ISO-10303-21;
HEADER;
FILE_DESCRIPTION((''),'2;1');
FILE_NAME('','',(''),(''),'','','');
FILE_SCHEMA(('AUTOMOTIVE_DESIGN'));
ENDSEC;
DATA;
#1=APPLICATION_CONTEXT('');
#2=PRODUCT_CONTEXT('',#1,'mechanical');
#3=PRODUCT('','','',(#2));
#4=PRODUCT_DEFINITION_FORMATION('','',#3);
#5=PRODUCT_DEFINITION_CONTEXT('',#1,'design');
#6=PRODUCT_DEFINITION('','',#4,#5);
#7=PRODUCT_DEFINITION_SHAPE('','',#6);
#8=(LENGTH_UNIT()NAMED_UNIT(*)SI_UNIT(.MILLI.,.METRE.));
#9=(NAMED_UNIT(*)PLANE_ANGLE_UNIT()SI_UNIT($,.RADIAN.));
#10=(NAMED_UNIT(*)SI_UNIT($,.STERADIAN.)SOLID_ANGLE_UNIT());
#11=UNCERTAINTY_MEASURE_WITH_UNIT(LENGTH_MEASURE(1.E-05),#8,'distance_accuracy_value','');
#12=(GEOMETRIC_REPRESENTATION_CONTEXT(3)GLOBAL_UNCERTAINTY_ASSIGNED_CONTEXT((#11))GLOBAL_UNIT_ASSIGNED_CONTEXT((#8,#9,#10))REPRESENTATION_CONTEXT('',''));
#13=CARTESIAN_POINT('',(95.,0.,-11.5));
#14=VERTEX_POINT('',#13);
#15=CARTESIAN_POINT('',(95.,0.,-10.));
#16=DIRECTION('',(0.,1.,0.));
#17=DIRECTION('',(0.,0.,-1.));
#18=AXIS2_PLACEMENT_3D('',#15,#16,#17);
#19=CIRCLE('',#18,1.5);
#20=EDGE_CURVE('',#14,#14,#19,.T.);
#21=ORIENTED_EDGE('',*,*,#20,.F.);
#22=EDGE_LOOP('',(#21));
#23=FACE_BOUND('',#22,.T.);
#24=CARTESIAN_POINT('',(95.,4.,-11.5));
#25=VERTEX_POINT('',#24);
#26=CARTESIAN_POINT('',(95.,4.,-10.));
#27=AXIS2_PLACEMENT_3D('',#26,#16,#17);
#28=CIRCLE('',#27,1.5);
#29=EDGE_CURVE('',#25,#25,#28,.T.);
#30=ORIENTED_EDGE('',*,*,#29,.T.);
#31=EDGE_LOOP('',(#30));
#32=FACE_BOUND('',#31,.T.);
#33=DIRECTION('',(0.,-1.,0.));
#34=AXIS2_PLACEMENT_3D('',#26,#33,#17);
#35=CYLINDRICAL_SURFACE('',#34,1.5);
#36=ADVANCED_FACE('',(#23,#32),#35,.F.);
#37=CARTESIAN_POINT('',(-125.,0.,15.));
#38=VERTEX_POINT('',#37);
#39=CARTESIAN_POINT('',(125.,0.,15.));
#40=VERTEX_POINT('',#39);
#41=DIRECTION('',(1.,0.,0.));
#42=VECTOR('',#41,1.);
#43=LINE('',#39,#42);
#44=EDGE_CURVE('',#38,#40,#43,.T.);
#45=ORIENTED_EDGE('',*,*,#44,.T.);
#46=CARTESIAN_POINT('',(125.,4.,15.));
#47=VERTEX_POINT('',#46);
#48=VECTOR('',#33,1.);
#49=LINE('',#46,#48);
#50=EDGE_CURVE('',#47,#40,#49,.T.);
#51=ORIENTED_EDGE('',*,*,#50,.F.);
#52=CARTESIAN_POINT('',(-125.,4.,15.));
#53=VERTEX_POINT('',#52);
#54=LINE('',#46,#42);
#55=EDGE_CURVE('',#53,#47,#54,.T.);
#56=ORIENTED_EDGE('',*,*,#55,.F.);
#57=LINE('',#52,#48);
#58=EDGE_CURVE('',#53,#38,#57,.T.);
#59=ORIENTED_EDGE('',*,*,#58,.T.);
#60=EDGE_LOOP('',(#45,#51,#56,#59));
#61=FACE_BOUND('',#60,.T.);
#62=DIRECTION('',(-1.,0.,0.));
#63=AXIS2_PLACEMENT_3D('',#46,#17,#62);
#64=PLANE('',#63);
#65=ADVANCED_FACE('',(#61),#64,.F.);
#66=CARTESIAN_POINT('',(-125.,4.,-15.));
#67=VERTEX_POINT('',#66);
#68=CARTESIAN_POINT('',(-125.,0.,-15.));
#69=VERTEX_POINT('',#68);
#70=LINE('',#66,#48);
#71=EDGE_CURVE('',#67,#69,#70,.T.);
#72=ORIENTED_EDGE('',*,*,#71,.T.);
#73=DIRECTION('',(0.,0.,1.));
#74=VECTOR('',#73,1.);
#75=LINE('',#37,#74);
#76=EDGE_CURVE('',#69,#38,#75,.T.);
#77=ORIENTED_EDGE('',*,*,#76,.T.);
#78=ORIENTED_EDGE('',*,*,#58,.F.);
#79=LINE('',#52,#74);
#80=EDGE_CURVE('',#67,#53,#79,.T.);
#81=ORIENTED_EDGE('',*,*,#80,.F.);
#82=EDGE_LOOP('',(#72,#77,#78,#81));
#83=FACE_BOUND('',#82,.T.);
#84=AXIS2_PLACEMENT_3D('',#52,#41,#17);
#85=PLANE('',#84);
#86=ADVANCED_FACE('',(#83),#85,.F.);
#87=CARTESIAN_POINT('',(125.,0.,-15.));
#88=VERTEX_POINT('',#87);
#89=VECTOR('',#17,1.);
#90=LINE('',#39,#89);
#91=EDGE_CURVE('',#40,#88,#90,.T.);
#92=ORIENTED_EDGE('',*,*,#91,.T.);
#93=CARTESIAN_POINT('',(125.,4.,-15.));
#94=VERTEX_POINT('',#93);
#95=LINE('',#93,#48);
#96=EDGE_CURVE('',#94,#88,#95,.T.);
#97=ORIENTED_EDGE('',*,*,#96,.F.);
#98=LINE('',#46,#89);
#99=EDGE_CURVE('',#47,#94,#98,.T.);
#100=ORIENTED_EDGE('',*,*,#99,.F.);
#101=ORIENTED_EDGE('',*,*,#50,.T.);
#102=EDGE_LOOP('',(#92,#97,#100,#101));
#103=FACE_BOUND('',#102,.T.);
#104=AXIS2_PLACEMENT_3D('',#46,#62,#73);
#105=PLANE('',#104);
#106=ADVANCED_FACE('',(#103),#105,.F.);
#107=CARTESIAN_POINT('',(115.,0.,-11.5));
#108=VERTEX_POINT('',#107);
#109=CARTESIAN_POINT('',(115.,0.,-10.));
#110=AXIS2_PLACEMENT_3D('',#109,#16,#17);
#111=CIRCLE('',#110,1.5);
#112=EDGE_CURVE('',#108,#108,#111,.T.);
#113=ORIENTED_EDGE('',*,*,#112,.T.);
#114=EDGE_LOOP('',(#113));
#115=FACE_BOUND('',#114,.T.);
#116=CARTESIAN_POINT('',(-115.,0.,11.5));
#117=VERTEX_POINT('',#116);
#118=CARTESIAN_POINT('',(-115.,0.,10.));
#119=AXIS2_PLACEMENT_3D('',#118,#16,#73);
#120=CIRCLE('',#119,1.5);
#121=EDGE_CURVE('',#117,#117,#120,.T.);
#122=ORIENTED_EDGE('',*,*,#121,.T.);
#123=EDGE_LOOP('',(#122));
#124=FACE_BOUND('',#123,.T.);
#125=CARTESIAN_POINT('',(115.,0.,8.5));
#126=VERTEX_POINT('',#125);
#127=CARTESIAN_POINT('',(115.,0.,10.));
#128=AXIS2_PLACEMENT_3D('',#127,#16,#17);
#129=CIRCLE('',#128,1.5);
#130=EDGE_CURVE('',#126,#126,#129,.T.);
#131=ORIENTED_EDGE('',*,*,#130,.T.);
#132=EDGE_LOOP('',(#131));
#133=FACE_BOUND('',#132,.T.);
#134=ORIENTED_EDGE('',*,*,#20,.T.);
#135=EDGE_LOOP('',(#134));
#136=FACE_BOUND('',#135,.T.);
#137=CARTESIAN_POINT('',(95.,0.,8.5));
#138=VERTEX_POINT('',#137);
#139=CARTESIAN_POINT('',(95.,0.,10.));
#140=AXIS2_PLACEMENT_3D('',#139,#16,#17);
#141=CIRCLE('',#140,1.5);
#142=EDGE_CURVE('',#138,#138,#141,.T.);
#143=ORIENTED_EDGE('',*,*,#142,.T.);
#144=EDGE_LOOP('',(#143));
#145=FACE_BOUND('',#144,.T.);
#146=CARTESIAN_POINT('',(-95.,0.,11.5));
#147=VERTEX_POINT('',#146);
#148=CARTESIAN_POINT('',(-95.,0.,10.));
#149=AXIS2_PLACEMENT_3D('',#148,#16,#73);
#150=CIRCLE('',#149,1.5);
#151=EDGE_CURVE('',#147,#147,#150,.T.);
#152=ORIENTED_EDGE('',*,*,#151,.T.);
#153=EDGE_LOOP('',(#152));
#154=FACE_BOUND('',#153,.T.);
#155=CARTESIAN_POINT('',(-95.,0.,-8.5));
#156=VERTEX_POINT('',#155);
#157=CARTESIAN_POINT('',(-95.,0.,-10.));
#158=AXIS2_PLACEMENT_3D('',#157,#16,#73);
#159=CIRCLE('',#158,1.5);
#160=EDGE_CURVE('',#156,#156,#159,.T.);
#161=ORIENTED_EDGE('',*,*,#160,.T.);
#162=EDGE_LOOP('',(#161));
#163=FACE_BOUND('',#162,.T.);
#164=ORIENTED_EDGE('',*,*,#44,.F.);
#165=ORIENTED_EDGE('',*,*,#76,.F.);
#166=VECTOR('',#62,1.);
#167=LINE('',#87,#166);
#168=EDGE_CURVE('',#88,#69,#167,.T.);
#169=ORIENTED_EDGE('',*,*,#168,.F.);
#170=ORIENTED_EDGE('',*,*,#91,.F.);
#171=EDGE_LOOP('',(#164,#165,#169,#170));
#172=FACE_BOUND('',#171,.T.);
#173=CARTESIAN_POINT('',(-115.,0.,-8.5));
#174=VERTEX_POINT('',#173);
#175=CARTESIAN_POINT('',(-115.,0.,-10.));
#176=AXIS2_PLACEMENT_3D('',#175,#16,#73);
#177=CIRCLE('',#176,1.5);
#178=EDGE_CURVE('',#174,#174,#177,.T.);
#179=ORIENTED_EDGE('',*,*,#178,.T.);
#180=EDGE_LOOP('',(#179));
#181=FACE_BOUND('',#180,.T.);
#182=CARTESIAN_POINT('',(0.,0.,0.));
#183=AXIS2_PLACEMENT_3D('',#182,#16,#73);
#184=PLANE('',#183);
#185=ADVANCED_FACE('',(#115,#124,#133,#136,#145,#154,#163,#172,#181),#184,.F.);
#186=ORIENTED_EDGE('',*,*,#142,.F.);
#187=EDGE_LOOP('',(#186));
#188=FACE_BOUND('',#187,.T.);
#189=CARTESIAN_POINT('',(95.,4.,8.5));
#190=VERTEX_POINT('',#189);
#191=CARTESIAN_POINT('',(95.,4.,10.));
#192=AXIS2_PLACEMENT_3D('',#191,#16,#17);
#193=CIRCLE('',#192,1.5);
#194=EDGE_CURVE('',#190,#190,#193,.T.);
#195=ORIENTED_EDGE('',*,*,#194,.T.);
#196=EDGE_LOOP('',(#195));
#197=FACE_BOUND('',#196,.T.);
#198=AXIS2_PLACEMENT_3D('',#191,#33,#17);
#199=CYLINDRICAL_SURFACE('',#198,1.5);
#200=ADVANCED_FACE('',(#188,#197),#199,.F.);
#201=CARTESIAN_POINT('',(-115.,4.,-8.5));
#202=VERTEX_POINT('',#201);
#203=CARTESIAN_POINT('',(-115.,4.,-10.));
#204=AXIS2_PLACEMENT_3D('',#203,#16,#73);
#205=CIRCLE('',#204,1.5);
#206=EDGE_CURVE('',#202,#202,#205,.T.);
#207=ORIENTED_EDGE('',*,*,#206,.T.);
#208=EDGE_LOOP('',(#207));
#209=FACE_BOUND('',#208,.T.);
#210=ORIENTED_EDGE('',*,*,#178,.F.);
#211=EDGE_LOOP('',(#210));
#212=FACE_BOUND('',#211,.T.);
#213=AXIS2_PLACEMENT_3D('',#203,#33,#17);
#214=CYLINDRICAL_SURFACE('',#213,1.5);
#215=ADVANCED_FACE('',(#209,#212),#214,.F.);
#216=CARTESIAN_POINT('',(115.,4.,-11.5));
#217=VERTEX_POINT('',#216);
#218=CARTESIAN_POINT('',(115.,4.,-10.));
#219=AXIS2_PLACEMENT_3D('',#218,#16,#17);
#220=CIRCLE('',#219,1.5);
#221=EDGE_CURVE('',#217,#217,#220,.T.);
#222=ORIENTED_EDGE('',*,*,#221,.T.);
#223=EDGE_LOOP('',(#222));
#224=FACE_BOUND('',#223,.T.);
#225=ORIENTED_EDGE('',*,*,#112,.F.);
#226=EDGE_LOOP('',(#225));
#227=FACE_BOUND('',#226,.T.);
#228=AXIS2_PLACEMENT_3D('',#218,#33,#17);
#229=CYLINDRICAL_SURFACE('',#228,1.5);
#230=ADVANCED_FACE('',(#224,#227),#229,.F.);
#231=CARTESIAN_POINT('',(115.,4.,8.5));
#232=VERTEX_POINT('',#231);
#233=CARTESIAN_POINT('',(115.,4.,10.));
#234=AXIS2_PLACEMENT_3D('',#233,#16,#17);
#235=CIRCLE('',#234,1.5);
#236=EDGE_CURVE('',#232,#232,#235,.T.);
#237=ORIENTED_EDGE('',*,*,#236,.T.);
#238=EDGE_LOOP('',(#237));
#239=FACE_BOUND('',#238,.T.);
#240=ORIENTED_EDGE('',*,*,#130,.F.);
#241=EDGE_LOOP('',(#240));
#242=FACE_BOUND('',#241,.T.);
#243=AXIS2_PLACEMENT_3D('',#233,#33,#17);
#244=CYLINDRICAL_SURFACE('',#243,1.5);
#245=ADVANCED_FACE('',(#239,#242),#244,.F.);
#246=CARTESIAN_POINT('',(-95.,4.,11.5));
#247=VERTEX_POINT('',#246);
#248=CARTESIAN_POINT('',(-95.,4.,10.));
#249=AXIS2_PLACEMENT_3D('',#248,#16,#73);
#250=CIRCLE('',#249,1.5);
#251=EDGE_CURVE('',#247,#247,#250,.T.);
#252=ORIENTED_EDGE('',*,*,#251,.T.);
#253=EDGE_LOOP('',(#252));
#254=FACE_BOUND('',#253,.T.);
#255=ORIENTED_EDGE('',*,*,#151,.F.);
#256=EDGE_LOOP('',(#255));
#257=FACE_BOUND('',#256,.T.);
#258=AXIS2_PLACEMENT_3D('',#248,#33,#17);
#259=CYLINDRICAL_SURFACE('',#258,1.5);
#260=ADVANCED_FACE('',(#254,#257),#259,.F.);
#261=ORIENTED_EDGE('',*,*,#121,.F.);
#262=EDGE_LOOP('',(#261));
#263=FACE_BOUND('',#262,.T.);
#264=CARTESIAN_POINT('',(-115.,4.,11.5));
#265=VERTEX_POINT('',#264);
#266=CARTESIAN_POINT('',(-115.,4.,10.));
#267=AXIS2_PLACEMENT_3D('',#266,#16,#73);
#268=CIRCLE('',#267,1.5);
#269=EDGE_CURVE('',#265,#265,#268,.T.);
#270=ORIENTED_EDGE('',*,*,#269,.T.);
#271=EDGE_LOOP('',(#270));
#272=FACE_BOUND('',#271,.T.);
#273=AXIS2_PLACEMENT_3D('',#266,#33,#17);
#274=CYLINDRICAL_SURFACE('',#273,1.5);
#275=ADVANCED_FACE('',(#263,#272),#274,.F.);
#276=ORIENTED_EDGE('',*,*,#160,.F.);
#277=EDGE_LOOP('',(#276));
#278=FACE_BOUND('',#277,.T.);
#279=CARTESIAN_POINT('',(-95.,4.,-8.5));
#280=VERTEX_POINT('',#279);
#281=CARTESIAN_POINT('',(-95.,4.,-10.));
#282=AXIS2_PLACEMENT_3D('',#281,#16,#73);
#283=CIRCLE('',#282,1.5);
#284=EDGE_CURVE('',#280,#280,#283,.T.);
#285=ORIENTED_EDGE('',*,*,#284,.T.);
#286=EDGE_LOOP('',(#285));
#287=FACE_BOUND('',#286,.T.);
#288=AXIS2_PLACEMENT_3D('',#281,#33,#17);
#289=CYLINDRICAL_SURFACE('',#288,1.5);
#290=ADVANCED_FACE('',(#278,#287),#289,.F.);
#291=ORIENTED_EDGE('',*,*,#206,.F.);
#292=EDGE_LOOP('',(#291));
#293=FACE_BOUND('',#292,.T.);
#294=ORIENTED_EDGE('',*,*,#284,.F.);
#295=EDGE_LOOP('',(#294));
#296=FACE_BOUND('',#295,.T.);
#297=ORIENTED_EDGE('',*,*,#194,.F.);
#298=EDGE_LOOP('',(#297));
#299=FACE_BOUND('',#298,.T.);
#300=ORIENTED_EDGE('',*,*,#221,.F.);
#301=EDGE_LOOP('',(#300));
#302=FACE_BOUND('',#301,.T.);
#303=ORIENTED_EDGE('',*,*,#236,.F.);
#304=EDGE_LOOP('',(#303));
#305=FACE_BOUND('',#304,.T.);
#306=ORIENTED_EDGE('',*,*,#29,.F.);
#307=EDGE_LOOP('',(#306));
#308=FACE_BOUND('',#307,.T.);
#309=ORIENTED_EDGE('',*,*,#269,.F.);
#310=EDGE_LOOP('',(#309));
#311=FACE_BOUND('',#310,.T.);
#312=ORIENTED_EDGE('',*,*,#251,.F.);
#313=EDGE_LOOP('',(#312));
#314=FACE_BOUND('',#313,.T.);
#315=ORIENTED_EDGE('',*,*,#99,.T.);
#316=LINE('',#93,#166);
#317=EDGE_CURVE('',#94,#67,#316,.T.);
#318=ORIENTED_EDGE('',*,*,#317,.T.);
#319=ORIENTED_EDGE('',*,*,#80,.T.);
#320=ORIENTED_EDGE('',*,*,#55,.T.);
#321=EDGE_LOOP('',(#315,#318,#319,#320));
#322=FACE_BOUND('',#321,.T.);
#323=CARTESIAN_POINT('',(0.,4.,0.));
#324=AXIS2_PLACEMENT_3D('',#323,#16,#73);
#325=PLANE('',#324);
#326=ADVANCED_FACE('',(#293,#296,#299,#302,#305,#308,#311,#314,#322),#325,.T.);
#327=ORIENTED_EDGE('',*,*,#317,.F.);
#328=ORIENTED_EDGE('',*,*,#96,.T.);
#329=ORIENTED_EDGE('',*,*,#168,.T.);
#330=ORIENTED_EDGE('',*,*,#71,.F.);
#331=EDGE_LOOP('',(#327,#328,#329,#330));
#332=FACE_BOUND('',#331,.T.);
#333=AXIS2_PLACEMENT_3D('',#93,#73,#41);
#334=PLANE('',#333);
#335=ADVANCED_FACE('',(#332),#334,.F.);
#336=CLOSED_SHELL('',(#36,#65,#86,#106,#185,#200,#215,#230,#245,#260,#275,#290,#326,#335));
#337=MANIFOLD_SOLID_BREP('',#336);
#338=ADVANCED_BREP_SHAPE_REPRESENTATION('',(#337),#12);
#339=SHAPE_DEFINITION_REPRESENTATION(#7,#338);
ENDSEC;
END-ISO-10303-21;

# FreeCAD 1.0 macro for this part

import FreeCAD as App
import Part
import Sketcher


def add_polygon(sketch, points):
    """Adds a closed chain of lines whose ends are joined by coincident constraints."""
    first, n = sketch.GeometryCount, len(points)
    for a, b in zip(points, points[1:] + points[:1]):
        sketch.addGeometry(Part.LineSegment(App.Vector(*a, 0), App.Vector(*b, 0)), False)
    for i in range(n):
        sketch.addConstraint(Sketcher.Constraint("Coincident", first + i, 2, first + (i + 1) % n, 1))

doc = App.newDocument("Part")
body = doc.addObject("PartDesign::Body", "Body")

sketch1 = doc.addObject("Sketcher::SketchObject", "Sketch")
body.addObject(sketch1)
sketch1.AttachmentSupport = (doc.XZ_Plane, [""])
sketch1.MapMode = "FlatFace"
add_polygon(sketch1, [(-125, -15), (-125, 15), (125, 15), (125, -15)])
sketch1.addGeometry(Part.Circle(App.Vector(-115, 10, 0), App.Vector(0, 0, 1), 1.5), False)
sketch1.addGeometry(Part.Circle(App.Vector(-95, 10, 0), App.Vector(0, 0, 1), 1.5), False)
sketch1.addGeometry(Part.Circle(App.Vector(95, 10, 0), App.Vector(0, 0, 1), 1.5), False)
sketch1.addGeometry(Part.Circle(App.Vector(115, 10, 0), App.Vector(0, 0, 1), 1.5), False)
sketch1.addGeometry(Part.Circle(App.Vector(-115, -10, 0), App.Vector(0, 0, 1), 1.5), False)
sketch1.addGeometry(Part.Circle(App.Vector(-95, -10, 0), App.Vector(0, 0, 1), 1.5), False)
sketch1.addGeometry(Part.Circle(App.Vector(95, -10, 0), App.Vector(0, 0, 1), 1.5), False)
sketch1.addGeometry(Part.Circle(App.Vector(115, -10, 0), App.Vector(0, 0, 1), 1.5), False)
sketch1.addConstraint(Sketcher.Constraint("Vertical", 0))
sketch1.addConstraint(Sketcher.Constraint("Horizontal", 1))
sketch1.addConstraint(Sketcher.Constraint("Vertical", 2))
sketch1.addConstraint(Sketcher.Constraint("Horizontal", 3))
sketch1.addConstraint(Sketcher.Constraint("Equal", 4, 5))
sketch1.addConstraint(Sketcher.Constraint("Equal", 5, 6))
sketch1.addConstraint(Sketcher.Constraint("Equal", 6, 7))
sketch1.addConstraint(Sketcher.Constraint("Equal", 7, 8))
sketch1.addConstraint(Sketcher.Constraint("Equal", 8, 9))
sketch1.addConstraint(Sketcher.Constraint("Equal", 9, 10))
sketch1.addConstraint(Sketcher.Constraint("Equal", 10, 11))
sketch1.addConstraint(Sketcher.Constraint("Symmetric", 7, 3, 8, 3, -1, 1))
sketch1.addConstraint(Sketcher.Constraint("Symmetric", 6, 3, 9, 3, -1, 1))
sketch1.addConstraint(Sketcher.Constraint("Symmetric", 5, 3, 10, 3, -1, 1))
sketch1.addConstraint(Sketcher.Constraint("Symmetric", 4, 3, 11, 3, -1, 1))
sketch1.addConstraint(Sketcher.Constraint("Symmetric", 0, 2, 2, 2, -1, 1))
sketch1.addConstraint(Sketcher.Constraint("Symmetric", 5, 3, 6, 3, -2))
sketch1.addConstraint(Sketcher.Constraint("Symmetric", 4, 3, 7, 3, -2))
sketch1.addConstraint(Sketcher.Constraint("Horizontal", 4, 3, 5, 3))
sketch1.addConstraint(Sketcher.Constraint("Diameter", 4, 3.0))
sketch1.addConstraint(Sketcher.Constraint("DistanceX", 1, 1, 1, 2, 250.0))
sketch1.addConstraint(Sketcher.Constraint("DistanceY", 0, 1, 0, 2, 30.0))
sketch1.addConstraint(Sketcher.Constraint("DistanceX", 4, 3, -1, 1, 115.0))
sketch1.addConstraint(Sketcher.Constraint("DistanceY", -1, 1, 4, 3, 10.0))
sketch1.addConstraint(Sketcher.Constraint("DistanceX", 5, 3, -1, 1, 95.0))
pad1 = doc.addObject("PartDesign::Pad", "Pad")
body.addObject(pad1)
pad1.Profile = sketch1
pad1.Length = 4
pad1.Reversed = True

doc.recompute()
